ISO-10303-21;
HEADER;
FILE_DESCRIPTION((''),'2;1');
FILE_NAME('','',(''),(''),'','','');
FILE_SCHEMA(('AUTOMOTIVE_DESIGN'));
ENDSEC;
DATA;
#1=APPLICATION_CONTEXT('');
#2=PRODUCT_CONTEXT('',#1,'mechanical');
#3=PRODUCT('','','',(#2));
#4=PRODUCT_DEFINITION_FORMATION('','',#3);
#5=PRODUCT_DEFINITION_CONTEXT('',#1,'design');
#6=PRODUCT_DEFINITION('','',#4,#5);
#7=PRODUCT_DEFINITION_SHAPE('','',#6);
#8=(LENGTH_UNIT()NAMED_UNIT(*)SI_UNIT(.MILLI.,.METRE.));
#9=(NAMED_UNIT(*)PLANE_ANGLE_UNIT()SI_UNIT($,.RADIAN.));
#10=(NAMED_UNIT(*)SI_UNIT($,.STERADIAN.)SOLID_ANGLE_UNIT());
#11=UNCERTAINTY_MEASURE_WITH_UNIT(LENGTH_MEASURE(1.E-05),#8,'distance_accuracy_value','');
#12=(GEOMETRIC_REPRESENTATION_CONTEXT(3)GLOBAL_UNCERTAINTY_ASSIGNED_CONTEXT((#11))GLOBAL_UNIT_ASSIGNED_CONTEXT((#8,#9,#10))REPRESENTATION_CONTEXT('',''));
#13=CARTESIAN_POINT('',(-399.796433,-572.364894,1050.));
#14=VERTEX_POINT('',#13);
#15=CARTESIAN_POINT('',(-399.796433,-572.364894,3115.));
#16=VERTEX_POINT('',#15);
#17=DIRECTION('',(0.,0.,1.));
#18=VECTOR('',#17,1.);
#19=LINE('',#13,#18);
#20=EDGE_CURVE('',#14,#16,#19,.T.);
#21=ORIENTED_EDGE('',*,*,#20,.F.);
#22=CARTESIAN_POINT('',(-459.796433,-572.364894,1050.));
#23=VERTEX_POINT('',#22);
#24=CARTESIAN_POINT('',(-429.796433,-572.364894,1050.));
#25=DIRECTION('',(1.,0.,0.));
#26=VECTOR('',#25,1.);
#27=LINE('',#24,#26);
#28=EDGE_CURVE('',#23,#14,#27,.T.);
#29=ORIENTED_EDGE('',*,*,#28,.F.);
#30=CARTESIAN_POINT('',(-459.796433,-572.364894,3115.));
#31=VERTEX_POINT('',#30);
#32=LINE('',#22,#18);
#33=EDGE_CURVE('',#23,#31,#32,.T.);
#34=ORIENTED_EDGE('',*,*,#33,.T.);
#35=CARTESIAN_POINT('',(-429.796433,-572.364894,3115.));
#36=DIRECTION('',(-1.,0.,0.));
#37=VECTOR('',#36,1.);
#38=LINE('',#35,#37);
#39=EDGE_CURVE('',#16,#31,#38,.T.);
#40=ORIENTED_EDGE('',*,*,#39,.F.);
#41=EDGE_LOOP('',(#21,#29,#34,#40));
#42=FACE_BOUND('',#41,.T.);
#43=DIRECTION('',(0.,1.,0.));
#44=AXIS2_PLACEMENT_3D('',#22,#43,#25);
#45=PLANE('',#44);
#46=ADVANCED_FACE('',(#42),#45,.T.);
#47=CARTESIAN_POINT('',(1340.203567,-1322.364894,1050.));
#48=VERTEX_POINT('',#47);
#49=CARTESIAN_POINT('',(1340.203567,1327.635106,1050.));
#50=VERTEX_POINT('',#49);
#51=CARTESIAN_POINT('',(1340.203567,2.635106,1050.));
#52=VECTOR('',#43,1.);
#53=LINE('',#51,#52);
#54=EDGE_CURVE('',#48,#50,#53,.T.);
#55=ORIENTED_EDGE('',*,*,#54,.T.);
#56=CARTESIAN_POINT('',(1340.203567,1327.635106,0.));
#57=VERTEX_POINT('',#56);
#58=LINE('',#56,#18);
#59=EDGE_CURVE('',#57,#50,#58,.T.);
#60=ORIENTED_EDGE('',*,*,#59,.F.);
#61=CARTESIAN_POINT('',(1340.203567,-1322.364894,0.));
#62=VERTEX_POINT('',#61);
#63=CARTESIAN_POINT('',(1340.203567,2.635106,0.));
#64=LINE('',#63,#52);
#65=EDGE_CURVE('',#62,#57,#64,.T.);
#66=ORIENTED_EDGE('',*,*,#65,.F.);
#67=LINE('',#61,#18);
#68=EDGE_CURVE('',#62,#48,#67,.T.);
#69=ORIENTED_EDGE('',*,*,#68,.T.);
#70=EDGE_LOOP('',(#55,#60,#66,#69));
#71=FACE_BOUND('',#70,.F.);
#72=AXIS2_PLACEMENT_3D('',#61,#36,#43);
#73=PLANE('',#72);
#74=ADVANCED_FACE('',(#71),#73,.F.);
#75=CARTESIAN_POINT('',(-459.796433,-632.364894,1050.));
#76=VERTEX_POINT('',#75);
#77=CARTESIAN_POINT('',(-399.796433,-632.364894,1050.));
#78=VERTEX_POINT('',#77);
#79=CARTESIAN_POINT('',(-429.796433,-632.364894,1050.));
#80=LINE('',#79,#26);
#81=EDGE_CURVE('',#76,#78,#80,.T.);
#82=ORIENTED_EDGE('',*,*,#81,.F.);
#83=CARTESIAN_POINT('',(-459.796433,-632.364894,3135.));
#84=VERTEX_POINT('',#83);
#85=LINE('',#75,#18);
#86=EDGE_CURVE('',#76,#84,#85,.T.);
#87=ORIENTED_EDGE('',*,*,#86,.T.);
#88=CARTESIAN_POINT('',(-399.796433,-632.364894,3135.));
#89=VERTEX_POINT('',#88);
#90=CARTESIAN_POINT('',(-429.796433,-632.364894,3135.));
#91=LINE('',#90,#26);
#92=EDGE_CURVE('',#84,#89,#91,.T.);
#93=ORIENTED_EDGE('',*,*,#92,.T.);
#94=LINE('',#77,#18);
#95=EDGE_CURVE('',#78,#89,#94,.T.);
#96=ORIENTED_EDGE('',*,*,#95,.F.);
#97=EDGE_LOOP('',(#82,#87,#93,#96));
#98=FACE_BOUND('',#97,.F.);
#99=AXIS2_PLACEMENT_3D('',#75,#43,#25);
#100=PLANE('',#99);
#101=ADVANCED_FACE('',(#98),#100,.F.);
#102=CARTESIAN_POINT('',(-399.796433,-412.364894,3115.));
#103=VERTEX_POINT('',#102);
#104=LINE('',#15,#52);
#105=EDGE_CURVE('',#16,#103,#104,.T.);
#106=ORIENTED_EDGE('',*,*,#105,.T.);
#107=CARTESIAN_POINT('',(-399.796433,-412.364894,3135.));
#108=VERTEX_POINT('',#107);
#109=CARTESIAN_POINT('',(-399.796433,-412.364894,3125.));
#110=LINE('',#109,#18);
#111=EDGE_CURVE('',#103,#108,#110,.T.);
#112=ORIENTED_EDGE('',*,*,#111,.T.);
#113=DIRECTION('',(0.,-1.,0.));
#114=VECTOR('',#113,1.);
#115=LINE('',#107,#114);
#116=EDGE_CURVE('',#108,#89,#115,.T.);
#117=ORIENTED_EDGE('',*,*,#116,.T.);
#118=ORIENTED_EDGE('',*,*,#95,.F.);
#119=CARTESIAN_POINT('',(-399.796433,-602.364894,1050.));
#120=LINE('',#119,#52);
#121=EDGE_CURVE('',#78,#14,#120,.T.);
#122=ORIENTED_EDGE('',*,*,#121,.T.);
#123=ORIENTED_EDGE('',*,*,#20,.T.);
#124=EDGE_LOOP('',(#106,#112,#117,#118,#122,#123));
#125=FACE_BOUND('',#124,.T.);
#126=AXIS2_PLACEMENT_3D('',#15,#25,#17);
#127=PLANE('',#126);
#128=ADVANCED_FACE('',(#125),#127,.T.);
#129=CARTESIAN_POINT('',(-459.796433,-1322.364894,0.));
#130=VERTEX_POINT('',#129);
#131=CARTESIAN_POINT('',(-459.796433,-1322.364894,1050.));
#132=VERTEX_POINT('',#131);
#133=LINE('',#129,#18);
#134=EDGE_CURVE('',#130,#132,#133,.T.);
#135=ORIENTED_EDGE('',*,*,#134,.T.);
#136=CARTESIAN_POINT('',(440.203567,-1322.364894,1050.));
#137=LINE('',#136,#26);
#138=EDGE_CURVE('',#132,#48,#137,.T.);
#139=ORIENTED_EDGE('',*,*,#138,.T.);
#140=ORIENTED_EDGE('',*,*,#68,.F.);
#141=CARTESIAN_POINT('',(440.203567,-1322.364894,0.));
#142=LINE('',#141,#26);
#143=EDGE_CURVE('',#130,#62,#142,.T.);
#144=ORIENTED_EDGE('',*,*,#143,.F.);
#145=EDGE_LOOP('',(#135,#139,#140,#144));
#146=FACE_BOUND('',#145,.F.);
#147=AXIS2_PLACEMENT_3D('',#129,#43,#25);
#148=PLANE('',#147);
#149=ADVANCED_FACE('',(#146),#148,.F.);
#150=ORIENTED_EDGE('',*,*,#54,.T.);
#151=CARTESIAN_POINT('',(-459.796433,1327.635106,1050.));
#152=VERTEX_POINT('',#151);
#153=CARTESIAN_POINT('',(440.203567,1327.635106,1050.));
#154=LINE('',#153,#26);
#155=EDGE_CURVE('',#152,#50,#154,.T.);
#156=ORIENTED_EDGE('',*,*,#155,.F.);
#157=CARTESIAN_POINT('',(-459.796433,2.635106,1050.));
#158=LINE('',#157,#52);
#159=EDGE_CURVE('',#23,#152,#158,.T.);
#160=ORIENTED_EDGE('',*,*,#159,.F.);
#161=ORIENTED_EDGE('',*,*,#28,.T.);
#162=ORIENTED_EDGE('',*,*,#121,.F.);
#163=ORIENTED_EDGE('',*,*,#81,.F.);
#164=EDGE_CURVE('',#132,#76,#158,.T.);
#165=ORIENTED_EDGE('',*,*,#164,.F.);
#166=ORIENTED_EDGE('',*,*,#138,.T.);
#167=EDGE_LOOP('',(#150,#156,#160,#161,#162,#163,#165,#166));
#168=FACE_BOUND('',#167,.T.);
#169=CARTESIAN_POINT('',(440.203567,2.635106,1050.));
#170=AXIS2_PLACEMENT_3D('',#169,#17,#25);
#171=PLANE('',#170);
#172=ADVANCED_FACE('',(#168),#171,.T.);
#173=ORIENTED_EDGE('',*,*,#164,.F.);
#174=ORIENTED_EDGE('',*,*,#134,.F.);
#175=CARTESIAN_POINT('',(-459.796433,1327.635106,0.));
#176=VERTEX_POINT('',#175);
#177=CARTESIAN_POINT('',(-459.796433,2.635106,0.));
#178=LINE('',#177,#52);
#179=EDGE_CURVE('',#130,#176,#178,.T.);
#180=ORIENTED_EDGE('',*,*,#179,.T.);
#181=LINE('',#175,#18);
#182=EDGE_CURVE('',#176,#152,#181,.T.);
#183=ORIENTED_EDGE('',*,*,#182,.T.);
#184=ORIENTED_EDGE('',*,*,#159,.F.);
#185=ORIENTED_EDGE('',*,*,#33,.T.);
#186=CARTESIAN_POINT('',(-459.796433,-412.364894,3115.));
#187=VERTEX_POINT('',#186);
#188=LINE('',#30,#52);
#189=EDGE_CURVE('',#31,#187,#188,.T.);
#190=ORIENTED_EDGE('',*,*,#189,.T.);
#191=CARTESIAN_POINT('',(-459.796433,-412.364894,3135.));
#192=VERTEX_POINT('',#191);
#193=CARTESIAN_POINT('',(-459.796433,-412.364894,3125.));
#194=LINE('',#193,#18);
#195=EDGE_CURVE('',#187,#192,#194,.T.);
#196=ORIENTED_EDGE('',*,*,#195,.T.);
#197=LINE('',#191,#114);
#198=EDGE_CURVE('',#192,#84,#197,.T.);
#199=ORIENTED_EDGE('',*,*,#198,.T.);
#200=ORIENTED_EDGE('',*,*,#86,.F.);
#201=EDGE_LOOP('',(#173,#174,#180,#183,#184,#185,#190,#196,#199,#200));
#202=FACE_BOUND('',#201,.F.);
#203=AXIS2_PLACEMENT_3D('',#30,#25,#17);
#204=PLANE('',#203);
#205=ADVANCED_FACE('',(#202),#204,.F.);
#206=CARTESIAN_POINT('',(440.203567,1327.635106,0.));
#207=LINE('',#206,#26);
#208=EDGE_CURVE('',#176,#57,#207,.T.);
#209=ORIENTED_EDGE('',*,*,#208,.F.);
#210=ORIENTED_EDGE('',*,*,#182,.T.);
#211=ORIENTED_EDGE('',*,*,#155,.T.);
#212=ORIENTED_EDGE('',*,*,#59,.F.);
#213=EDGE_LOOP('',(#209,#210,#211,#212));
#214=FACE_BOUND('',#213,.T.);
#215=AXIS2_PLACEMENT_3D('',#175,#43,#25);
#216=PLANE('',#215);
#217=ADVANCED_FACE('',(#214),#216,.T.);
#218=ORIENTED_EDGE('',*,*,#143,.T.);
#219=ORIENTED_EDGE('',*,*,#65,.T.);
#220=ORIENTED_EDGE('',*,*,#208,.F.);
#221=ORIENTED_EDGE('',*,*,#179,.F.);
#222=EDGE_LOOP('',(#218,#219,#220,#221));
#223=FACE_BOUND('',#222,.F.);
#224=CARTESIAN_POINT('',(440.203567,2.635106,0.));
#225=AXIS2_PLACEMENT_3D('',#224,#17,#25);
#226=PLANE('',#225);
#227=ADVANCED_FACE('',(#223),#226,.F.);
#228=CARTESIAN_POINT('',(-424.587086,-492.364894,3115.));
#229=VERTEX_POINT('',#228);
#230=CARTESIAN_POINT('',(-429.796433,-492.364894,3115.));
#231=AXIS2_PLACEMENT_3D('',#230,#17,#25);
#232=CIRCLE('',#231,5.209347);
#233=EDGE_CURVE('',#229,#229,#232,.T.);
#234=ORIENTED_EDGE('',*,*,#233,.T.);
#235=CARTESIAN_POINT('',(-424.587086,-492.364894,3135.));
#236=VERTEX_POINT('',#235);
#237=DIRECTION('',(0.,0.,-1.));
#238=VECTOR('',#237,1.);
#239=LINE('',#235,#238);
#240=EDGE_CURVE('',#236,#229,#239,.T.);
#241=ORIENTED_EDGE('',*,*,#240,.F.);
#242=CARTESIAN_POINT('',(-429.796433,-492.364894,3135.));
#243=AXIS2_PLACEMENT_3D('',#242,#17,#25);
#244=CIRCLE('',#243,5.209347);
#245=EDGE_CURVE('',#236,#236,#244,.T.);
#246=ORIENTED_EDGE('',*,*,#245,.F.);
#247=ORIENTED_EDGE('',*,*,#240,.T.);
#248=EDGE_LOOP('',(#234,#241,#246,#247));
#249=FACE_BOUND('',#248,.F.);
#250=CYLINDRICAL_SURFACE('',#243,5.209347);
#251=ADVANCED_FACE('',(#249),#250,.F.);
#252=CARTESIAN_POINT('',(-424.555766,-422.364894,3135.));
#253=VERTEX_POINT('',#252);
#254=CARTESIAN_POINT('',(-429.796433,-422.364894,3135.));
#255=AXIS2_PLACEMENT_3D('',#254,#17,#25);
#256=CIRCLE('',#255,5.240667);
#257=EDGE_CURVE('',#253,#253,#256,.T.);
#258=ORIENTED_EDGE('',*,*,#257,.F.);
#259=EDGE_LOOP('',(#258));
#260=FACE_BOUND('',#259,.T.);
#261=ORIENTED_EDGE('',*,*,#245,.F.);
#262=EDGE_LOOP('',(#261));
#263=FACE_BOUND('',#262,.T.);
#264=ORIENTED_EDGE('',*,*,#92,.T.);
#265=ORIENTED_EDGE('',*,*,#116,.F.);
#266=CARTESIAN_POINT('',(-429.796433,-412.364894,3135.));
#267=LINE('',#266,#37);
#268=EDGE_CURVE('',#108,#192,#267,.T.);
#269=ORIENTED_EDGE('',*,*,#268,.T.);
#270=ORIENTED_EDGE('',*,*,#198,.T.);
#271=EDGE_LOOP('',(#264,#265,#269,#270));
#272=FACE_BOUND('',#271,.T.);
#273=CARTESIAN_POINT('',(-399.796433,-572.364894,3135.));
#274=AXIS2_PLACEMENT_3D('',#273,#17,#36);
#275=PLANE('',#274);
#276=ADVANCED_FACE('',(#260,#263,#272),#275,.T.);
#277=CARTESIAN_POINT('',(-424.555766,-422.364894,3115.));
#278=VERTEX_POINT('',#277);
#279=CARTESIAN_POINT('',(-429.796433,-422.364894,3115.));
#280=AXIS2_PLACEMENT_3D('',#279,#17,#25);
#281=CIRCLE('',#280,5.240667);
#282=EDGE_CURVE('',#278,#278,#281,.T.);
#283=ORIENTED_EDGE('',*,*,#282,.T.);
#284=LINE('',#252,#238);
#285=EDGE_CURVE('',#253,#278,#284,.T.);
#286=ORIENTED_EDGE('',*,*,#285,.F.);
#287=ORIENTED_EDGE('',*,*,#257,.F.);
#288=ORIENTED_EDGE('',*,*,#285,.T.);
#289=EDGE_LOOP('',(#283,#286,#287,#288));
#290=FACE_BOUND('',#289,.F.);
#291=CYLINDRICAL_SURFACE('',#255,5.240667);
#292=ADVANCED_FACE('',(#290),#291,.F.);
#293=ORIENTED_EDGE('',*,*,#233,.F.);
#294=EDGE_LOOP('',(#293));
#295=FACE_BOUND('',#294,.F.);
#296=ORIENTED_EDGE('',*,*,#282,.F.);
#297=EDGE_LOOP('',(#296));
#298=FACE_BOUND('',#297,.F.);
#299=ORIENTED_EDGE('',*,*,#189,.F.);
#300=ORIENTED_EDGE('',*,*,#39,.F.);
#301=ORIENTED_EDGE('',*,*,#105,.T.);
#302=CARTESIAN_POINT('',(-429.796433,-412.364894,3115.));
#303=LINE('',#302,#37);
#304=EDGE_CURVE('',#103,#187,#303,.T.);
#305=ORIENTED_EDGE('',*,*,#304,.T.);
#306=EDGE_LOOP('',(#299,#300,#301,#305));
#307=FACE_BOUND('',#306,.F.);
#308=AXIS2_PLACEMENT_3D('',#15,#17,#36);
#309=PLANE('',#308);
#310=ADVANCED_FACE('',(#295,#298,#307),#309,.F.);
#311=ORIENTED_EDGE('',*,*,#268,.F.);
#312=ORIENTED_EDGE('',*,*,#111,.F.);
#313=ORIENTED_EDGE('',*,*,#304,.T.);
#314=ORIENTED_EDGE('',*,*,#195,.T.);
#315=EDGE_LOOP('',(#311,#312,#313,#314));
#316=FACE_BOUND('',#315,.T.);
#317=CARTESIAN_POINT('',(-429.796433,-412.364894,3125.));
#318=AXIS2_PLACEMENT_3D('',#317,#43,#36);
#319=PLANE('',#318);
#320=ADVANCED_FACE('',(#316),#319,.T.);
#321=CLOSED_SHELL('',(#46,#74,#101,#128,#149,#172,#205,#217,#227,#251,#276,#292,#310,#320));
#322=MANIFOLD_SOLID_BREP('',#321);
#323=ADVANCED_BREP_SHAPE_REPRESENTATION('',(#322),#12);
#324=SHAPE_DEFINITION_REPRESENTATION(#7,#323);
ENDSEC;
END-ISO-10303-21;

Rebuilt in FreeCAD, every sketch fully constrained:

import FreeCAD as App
import Part
import Sketcher
from FreeCAD import Vector
Q = App.Units.Quantity


def add_polygon(sketch, points):
    """Adds a closed chain of lines whose ends are joined by coincident constraints."""
    first, n = sketch.GeometryCount, len(points)
    for a, b in zip(points, points[1:] + points[:1]):
        sketch.addGeometry(Part.LineSegment(App.Vector(*a, 0), App.Vector(*b, 0)), False)
    for i in range(n):
        sketch.addConstraint(Sketcher.Constraint("Coincident", first + i, 2, first + (i + 1) % n, 1))

doc = App.newDocument("Part")
params = doc.addObject("Spreadsheet::Sheet", "Params")
for row, (alias, value) in enumerate([
    ("sketch1_width", "1800 mm"),
    ("sketch1_height", "2650 mm"),
    ("pad1_length", "1050 mm"),
    ("sketch2_width", "60 mm"),
    ("pad2_length", "2085 mm"),
    ("sketch3_width", "60 mm"),
    ("sketch3_height", "20 mm"),
    ("pad3_length", "160 mm"),
    ("pocket1_length", "20 mm"),
], start=1):
    params.set(f"A{row}", alias)
    params.set(f"B{row}", "=" + value)
    params.setAlias(f"B{row}", alias)

body = doc.addObject("PartDesign::Body", "Body")

# Sketch on XY plane
sketch1 = body.newObject("Sketcher::SketchObject", "Sketch")
sketch1.AttachmentSupport = (doc.getObject("XY_Plane"), [""])
sketch1.MapMode = "FlatFace"
add_polygon(sketch1, [(-459.796433, 1327.635106), (-459.796433, -1322.364894), (1340.203567, -1322.364894), (1340.203567, 1327.635106)])  # lines 0-3
sketch1.addConstraint([
    Sketcher.Constraint("Vertical", 0),
    Sketcher.Constraint("Horizontal", 1),
    Sketcher.Constraint("Vertical", 2),
    Sketcher.Constraint("Horizontal", 3),
    Sketcher.Constraint("DistanceX", 1, 1, 1, 2, Q("1800 mm")),
    Sketcher.Constraint("DistanceY", 0, 2, 0, 1, Q("2650 mm")),
    Sketcher.Constraint("DistanceX", 0, 2, -1, 1, Q("459.796433 mm")),
    Sketcher.Constraint("DistanceY", 0, 2, -1, 1, Q("1322.364894 mm")),
])
sketch1.setExpression("Constraints[8]", "Params.sketch1_width")
sketch1.setExpression("Constraints[9]", "Params.sketch1_height")
pad1 = body.newObject("PartDesign::Pad", "Pad")
pad1.Profile = sketch1
pad1.setExpression("Length", "Params.pad1_length")

# Sketch on XY plane
sketch2 = body.newObject("Sketcher::SketchObject", "Sketch001")
sketch2.AttachmentSupport = (doc.getObject("XY_Plane"), [""])
sketch2.MapMode = "FlatFace"
sketch2.AttachmentOffset = App.Placement(Vector(0, 0, 1050), App.Rotation())
add_polygon(sketch2, [(-459.796433, -572.364894), (-459.796433, -632.364894), (-399.796433, -632.364894), (-399.796433, -572.364894)])  # lines 0-3
sketch2.addConstraint([
    Sketcher.Constraint("Vertical", 0),
    Sketcher.Constraint("Horizontal", 1),
    Sketcher.Constraint("Vertical", 2),
    Sketcher.Constraint("Horizontal", 3),
    Sketcher.Constraint("Equal", 3, 0),
    Sketcher.Constraint("DistanceX", 1, 1, 1, 2, Q("60 mm")),
    Sketcher.Constraint("DistanceX", 0, 2, -1, 1, Q("459.796433 mm")),
    Sketcher.Constraint("DistanceY", 0, 2, -1, 1, Q("632.364894 mm")),
])
sketch2.setExpression("Constraints[9]", "Params.sketch2_width")
pad2 = body.newObject("PartDesign::Pad", "Pad001")
pad2.Profile = sketch2
pad2.setExpression("Length", "Params.pad2_length")

# Sketch on XZ plane
sketch3 = body.newObject("Sketcher::SketchObject", "Sketch002")
sketch3.AttachmentSupport = (doc.getObject("XZ_Plane"), [""])
sketch3.MapMode = "FlatFace"
sketch3.AttachmentOffset = App.Placement(Vector(0, 0, 572.364894), App.Rotation())
add_polygon(sketch3, [(-399.796433, 3135), (-399.796433, 3115), (-459.796433, 3115), (-459.796433, 3135)])  # lines 0-3
sketch3.addConstraint([
    Sketcher.Constraint("Vertical", 0),
    Sketcher.Constraint("Horizontal", 1),
    Sketcher.Constraint("Vertical", 2),
    Sketcher.Constraint("Horizontal", 3),
    Sketcher.Constraint("DistanceX", 1, 2, 1, 1, Q("60 mm")),
    Sketcher.Constraint("DistanceY", 0, 2, 0, 1, Q("20 mm")),
    Sketcher.Constraint("DistanceY", -1, 1, 0, 2, Q("3115 mm")),
    Sketcher.Constraint("DistanceX", 0, 2, -1, 1, Q("399.796433 mm")),
])
sketch3.setExpression("Constraints[8]", "Params.sketch3_width")
sketch3.setExpression("Constraints[9]", "Params.sketch3_height")
pad3 = body.newObject("PartDesign::Pad", "Pad002")
pad3.Profile = sketch3
pad3.setExpression("Length", "Params.pad3_length")
pad3.Reversed = True

# Sketch on XY plane
sketch4 = body.newObject("Sketcher::SketchObject", "Sketch003")
sketch4.AttachmentSupport = (doc.getObject("XY_Plane"), [""])
sketch4.MapMode = "FlatFace"
sketch4.AttachmentOffset = App.Placement(Vector(0, 0, 3135), App.Rotation())
sketch4.addGeometry([
    Part.Circle(Vector(-429.796433, -492.364894, 0), Vector(0, 0, 1), 5.209347),
    Part.Circle(Vector(-429.796433, -422.364894, 0), Vector(0, 0, 1), 5.240667),
], False)
sketch4.addConstraint([
    Sketcher.Constraint("Vertical", 0, 3, 1, 3),
    Sketcher.Constraint("DistanceY", 0, 3, 1, 3, Q("70 mm")),
    Sketcher.Constraint("Diameter", 0, Q("10.418694 mm")),
    Sketcher.Constraint("Diameter", 1, Q("10.481334 mm")),
    Sketcher.Constraint("DistanceX", 0, 3, -1, 1, Q("429.796433 mm")),
    Sketcher.Constraint("DistanceY", 0, 3, -1, 1, Q("492.364894 mm")),
])
pocket1 = body.newObject("PartDesign::Pocket", "Pocket")
pocket1.Profile = sketch4
pocket1.setExpression("Length", "Params.pocket1_length")

doc.recompute()
